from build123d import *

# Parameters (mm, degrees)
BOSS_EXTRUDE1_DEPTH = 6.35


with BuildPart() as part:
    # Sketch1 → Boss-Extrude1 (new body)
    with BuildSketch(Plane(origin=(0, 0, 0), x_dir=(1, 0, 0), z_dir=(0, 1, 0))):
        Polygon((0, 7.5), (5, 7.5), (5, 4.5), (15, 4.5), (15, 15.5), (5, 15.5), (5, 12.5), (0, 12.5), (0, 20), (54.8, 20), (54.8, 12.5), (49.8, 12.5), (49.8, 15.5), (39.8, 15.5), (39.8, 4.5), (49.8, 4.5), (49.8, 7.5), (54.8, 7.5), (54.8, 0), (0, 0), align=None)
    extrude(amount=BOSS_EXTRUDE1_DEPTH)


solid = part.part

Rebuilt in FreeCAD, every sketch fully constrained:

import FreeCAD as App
import Part
import Sketcher
Q = App.Units.Quantity

doc = App.newDocument("Part")
body = doc.addObject("PartDesign::Body", "Body")

# Sketch on XZ plane
sketch1 = body.newObject("Sketcher::SketchObject", "Sketch")
sketch1.AttachmentSupport = (doc.getObject("XZ_Plane"), [""])
sketch1.MapMode = "FlatFace"
sketch1.addGeometry(Part.LineSegment(App.Vector(5, -7.5, 0), App.Vector(0, -7.5, 0)), False)
sketch1.addGeometry(Part.LineSegment(App.Vector(0, -7.5, 0), App.Vector(0, 0, 0)), False)
sketch1.addGeometry(Part.LineSegment(App.Vector(0, 0, 0), App.Vector(54.8, 0, 0)), False)
sketch1.addGeometry(Part.LineSegment(App.Vector(54.8, 0, 0), App.Vector(54.8, -7.5, 0)), False)
sketch1.addGeometry(Part.LineSegment(App.Vector(54.8, -7.5, 0), App.Vector(49.8, -7.5, 0)), False)
sketch1.addGeometry(Part.LineSegment(App.Vector(49.8, -7.5, 0), App.Vector(49.8, -4.5, 0)), False)
sketch1.addGeometry(Part.LineSegment(App.Vector(49.8, -4.5, 0), App.Vector(39.8, -4.5, 0)), False)
sketch1.addGeometry(Part.LineSegment(App.Vector(39.8, -4.5, 0), App.Vector(39.8, -15.5, 0)), False)
sketch1.addGeometry(Part.LineSegment(App.Vector(39.8, -15.5, 0), App.Vector(49.8, -15.5, 0)), False)
sketch1.addGeometry(Part.LineSegment(App.Vector(49.8, -15.5, 0), App.Vector(49.8, -12.5, 0)), False)
sketch1.addGeometry(Part.LineSegment(App.Vector(49.8, -12.5, 0), App.Vector(54.8, -12.5, 0)), False)
sketch1.addGeometry(Part.LineSegment(App.Vector(54.8, -12.5, 0), App.Vector(54.8, -20, 0)), False)
sketch1.addGeometry(Part.LineSegment(App.Vector(54.8, -20, 0), App.Vector(0, -20, 0)), False)
sketch1.addGeometry(Part.LineSegment(App.Vector(0, -20, 0), App.Vector(0, -12.5, 0)), False)
sketch1.addGeometry(Part.LineSegment(App.Vector(0, -12.5, 0), App.Vector(5, -12.5, 0)), False)
sketch1.addGeometry(Part.LineSegment(App.Vector(5, -12.5, 0), App.Vector(5, -15.5, 0)), False)
sketch1.addGeometry(Part.LineSegment(App.Vector(5, -15.5, 0), App.Vector(15, -15.5, 0)), False)
sketch1.addGeometry(Part.LineSegment(App.Vector(15, -15.5, 0), App.Vector(15, -4.5, 0)), False)
sketch1.addGeometry(Part.LineSegment(App.Vector(15, -4.5, 0), App.Vector(5, -4.5, 0)), False)
sketch1.addGeometry(Part.LineSegment(App.Vector(5, -4.5, 0), App.Vector(5, -7.5, 0)), False)
sketch1.addConstraint(Sketcher.Constraint("Coincident", 0, 2, 1, 1))
sketch1.addConstraint(Sketcher.Constraint("Coincident", 1, 2, 2, 1))
sketch1.addConstraint(Sketcher.Constraint("Coincident", 2, 2, 3, 1))
sketch1.addConstraint(Sketcher.Constraint("Coincident", 3, 2, 4, 1))
sketch1.addConstraint(Sketcher.Constraint("Coincident", 4, 2, 5, 1))
sketch1.addConstraint(Sketcher.Constraint("Coincident", 5, 2, 6, 1))
sketch1.addConstraint(Sketcher.Constraint("Coincident", 6, 2, 7, 1))
sketch1.addConstraint(Sketcher.Constraint("Coincident", 7, 2, 8, 1))
sketch1.addConstraint(Sketcher.Constraint("Coincident", 8, 2, 9, 1))
sketch1.addConstraint(Sketcher.Constraint("Coincident", 9, 2, 10, 1))
sketch1.addConstraint(Sketcher.Constraint("Coincident", 10, 2, 11, 1))
sketch1.addConstraint(Sketcher.Constraint("Coincident", 11, 2, 12, 1))
sketch1.addConstraint(Sketcher.Constraint("Coincident", 12, 2, 13, 1))
sketch1.addConstraint(Sketcher.Constraint("Coincident", 13, 2, 14, 1))
sketch1.addConstraint(Sketcher.Constraint("Coincident", 14, 2, 15, 1))
sketch1.addConstraint(Sketcher.Constraint("Coincident", 15, 2, 16, 1))
sketch1.addConstraint(Sketcher.Constraint("Coincident", 16, 2, 17, 1))
sketch1.addConstraint(Sketcher.Constraint("Coincident", 17, 2, 18, 1))
sketch1.addConstraint(Sketcher.Constraint("Coincident", 18, 2, 19, 1))
sketch1.addConstraint(Sketcher.Constraint("Coincident", 19, 2, 0, 1))
sketch1.addConstraint(Sketcher.Constraint("Horizontal", 0))
sketch1.addConstraint(Sketcher.Constraint("Vertical", 1))
sketch1.addConstraint(Sketcher.Constraint("Horizontal", 2))
sketch1.addConstraint(Sketcher.Constraint("Vertical", 3))
sketch1.addConstraint(Sketcher.Constraint("Horizontal", 4))
sketch1.addConstraint(Sketcher.Constraint("Vertical", 5))
sketch1.addConstraint(Sketcher.Constraint("Horizontal", 6))
sketch1.addConstraint(Sketcher.Constraint("Vertical", 7))
sketch1.addConstraint(Sketcher.Constraint("Horizontal", 8))
sketch1.addConstraint(Sketcher.Constraint("Vertical", 9))
sketch1.addConstraint(Sketcher.Constraint("Horizontal", 10))
sketch1.addConstraint(Sketcher.Constraint("Vertical", 11))
sketch1.addConstraint(Sketcher.Constraint("Horizontal", 12))
sketch1.addConstraint(Sketcher.Constraint("Vertical", 13))
sketch1.addConstraint(Sketcher.Constraint("Horizontal", 14))
sketch1.addConstraint(Sketcher.Constraint("Vertical", 15))
sketch1.addConstraint(Sketcher.Constraint("Horizontal", 16))
sketch1.addConstraint(Sketcher.Constraint("Vertical", 17))
sketch1.addConstraint(Sketcher.Constraint("Horizontal", 18))
sketch1.addConstraint(Sketcher.Constraint("Vertical", 19))
sketch1.addConstraint(Sketcher.Constraint("Coincident", 1, 2, -1, 1))
sketch1.addConstraint(Sketcher.Constraint("PointOnObject", 12, 2, -2))
sketch1.addConstraint(Sketcher.Constraint("Horizontal", 0, 2, 3, 2))
sketch1.addConstraint(Sketcher.Constraint("Horizontal", 10, 2, 13, 2))
sketch1.addConstraint(Sketcher.Constraint("Horizontal", 8, 2, 15, 2))
sketch1.addConstraint(Sketcher.Constraint("Horizontal", 6, 2, 17, 2))
sketch1.addConstraint(Sketcher.Constraint("Vertical", 5, 2, 8, 2))
sketch1.addConstraint(Sketcher.Constraint("Vertical", 3, 2, 10, 2))
sketch1.addConstraint(Sketcher.Constraint("Vertical", 15, 2, 18, 2))
sketch1.addConstraint(Sketcher.Constraint("Equal", 0, 4))
sketch1.addConstraint(Sketcher.Constraint("Equal", 8, 16))
sketch1.addConstraint(Sketcher.Constraint("Equal", 5, 9))
sketch1.addConstraint(Sketcher.Constraint("Equal", 3, 11))
sketch1.addConstraint(Sketcher.Constraint("DistanceX", 0, 2, 0, 1, Q("5 mm")))
sketch1.addConstraint(Sketcher.Constraint("DistanceX", 6, 2, 6, 1, Q("10 mm")))
sketch1.addConstraint(Sketcher.Constraint("DistanceY", 5, 1, 5, 2, Q("3 mm")))
sketch1.addConstraint(Sketcher.Constraint("DistanceY", 7, 2, 7, 1, Q("11 mm")))
sketch1.addConstraint(Sketcher.Constraint("DistanceX", 2, 1, 2, 2, Q("54.8 mm")))
sketch1.addConstraint(Sketcher.Constraint("DistanceY", 1, 1, 1, 2, Q("7.5 mm")))
pad1 = body.newObject("PartDesign::Pad", "Pad")
pad1.Profile = sketch1
pad1.Length = 6.35
pad1.Reversed = True

doc.recompute()
